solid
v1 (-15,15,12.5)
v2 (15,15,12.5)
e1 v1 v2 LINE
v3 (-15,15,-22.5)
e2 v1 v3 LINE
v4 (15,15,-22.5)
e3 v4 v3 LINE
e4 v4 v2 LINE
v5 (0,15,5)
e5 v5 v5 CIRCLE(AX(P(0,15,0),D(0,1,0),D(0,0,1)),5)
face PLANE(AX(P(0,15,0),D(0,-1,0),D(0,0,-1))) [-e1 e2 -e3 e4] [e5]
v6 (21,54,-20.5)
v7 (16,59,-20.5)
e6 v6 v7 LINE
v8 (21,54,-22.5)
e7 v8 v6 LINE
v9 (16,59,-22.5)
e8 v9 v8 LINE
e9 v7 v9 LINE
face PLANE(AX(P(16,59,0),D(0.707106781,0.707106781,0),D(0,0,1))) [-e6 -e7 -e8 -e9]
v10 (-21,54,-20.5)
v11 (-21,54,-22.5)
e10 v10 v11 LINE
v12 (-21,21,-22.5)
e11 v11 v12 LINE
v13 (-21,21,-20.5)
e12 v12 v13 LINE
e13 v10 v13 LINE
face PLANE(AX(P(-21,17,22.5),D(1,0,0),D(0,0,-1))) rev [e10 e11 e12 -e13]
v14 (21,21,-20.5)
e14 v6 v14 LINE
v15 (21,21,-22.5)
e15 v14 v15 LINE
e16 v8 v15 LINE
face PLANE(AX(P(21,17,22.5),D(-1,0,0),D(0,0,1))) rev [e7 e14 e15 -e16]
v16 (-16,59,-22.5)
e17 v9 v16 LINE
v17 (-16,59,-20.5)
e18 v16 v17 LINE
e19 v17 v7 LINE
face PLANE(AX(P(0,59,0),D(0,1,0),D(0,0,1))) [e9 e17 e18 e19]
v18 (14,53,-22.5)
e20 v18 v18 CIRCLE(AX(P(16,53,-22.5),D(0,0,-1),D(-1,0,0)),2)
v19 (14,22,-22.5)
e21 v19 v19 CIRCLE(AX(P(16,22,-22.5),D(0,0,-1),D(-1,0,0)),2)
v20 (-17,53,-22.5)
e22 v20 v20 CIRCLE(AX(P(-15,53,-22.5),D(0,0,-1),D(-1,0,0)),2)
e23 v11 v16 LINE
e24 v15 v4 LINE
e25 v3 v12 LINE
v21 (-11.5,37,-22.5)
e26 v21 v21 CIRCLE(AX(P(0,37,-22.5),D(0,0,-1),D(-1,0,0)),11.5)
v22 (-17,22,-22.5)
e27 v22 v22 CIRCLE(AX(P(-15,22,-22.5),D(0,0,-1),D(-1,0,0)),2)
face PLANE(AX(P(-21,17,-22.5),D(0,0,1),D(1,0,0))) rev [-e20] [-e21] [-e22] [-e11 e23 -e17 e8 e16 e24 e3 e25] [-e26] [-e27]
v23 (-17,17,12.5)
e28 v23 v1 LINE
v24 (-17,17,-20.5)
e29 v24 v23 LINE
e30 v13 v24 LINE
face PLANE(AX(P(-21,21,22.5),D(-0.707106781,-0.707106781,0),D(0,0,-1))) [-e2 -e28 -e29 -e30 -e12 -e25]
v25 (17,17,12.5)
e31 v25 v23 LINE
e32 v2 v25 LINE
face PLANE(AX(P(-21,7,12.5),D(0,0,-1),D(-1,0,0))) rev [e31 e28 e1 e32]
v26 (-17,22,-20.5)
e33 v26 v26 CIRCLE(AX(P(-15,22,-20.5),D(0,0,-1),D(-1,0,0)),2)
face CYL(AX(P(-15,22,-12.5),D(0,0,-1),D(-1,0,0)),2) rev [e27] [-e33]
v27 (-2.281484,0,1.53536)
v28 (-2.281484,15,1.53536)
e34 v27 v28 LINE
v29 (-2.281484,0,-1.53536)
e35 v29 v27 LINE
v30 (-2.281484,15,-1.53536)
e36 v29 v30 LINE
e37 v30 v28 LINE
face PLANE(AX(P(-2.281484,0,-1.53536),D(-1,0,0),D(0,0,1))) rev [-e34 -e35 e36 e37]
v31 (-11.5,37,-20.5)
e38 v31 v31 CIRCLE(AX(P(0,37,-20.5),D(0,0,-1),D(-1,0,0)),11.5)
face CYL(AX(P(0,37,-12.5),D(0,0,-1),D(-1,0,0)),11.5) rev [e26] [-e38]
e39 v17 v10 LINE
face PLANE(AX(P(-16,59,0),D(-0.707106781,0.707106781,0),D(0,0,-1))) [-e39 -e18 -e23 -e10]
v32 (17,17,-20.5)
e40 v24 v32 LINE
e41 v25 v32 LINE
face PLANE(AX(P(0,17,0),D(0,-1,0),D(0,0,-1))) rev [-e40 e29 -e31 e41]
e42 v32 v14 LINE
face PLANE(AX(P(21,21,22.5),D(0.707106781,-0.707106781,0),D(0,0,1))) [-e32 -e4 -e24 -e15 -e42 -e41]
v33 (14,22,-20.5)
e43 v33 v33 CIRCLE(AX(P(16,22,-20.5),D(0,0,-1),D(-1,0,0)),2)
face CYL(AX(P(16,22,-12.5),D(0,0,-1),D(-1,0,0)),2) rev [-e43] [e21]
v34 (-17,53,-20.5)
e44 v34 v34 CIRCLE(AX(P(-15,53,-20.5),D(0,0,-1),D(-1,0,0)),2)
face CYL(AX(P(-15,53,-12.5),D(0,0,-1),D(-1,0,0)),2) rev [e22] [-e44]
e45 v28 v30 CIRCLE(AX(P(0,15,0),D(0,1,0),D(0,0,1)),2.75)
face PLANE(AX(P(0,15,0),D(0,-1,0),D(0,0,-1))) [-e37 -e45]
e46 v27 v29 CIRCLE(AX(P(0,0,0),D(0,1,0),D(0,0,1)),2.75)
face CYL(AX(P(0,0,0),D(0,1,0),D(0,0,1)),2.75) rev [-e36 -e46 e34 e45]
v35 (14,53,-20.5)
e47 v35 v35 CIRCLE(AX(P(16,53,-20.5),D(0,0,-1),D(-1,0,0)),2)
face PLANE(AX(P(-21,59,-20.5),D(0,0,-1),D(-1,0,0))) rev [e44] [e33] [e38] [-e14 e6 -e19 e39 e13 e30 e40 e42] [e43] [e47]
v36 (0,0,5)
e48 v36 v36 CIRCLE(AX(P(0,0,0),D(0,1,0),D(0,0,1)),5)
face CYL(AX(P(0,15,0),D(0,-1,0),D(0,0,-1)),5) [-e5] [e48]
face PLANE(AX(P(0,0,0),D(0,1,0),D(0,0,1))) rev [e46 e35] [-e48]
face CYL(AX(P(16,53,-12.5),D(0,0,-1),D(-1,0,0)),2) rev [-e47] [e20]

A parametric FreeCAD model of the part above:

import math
import FreeCAD as App
import Part
import Sketcher

V = App.Vector
Q = App.Units.Quantity


def edges_at(feature, points):
    """Names of the edges that pass closest to the given points."""
    edges = feature.Shape.Edges
    near = lambda p: min(range(len(edges)), key=lambda i: edges[i].distToShape(Part.Vertex(*p))[0])
    return sorted({f"Edge{near(p) + 1}" for p in points})


def add_polygon(sketch, points):
    """Adds a closed chain of lines whose ends are joined by coincident constraints."""
    first, n = sketch.GeometryCount, len(points)
    for a, b in zip(points, points[1:] + points[:1]):
        sketch.addGeometry(Part.LineSegment(App.Vector(*a, 0), App.Vector(*b, 0)), False)
    for i in range(n):
        sketch.addConstraint(Sketcher.Constraint("Coincident", first + i, 2, first + (i + 1) % n, 1))

doc = App.newDocument("Part")
body = doc.addObject("PartDesign::Body", "Body")

# Sketch on XZ plane
sketch1 = body.newObject("Sketcher::SketchObject", "Sketch")
sketch1.AttachmentSupport = (doc.getObject("XZ_Plane"), [""])
sketch1.MapMode = "FlatFace"
sketch1.addGeometry(Part.Circle(V(0, 0, 0), V(0, 0, 1), 5), False)
sketch1.addConstraint([
    Sketcher.Constraint("Coincident", 0, 3, -1, 1),
    Sketcher.Constraint("Diameter", 0, Q("10 mm")),
])
pad1 = body.newObject("PartDesign::Pad", "Pad")
pad1.Profile = sketch1
pad1.Length = 15
pad1.Reversed = True

# Sketch on XZ plane
sketch2 = body.newObject("Sketcher::SketchObject", "Sketch001")
sketch2.AttachmentSupport = (doc.getObject("XZ_Plane"), [""])
sketch2.MapMode = "FlatFace"
sketch2.AttachmentOffset = App.Placement(V(0, 0, -15), App.Rotation())
sketch2.addGeometry([
    Part.LineSegment(V(-2.3, -1.5, 0), V(-2.3, 1.5, 0)),
    Part.ArcOfCircle(Part.Circle(V(0, 0, 0), V(0, 0, 1), 2.8), math.radians(-146), math.radians(146)),
], False)
sketch2.addConstraint([
    Sketcher.Constraint("Coincident", 0, 1, 1, 1),
    Sketcher.Constraint("Coincident", 1, 2, 0, 2),
    Sketcher.Constraint("Vertical", 0),
    Sketcher.Constraint("Coincident", 1, 3, -1, 1),
    Sketcher.Constraint("Radius", 1, Q("2.75 mm")),
    Sketcher.Constraint("DistanceY", 0, 1, 0, 2, Q("3.070719 mm")),
])
pocket1 = body.newObject("PartDesign::Pocket", "Pocket")
pocket1.Profile = sketch2
pocket1.Type = "ThroughAll"
pocket1.Reversed = True

# Sketch on XZ plane
sketch3 = body.newObject("Sketcher::SketchObject", "Sketch002")
sketch3.AttachmentSupport = (doc.getObject("XZ_Plane"), [""])
sketch3.MapMode = "FlatFace"
sketch3.AttachmentOffset = App.Placement(V(0, 0, -15), App.Rotation())
add_polygon(sketch3, [(-21, -22), (-21, 22), (21, 22), (21, -22)])  # lines 0-3
sketch3.addConstraint([
    Sketcher.Constraint("Vertical", 0),
    Sketcher.Constraint("Horizontal", 1),
    Sketcher.Constraint("Vertical", 2),
    Sketcher.Constraint("Horizontal", 3),
    Sketcher.Constraint("Symmetric", 0, 2, 2, 2, -1, 1),
    Sketcher.Constraint("DistanceX", 1, 1, 1, 2, Q("42 mm")),
    Sketcher.Constraint("DistanceY", 0, 1, 0, 2, Q("45 mm")),
])
pad2 = body.newObject("PartDesign::Pad", "Pad001")
pad2.Profile = sketch3
pad2.Length = 2
pad2.Reversed = True

# Sketch on XZ plane
sketch4 = body.newObject("Sketcher::SketchObject", "Sketch003")
sketch4.AttachmentSupport = (doc.getObject("XZ_Plane"), [""])
sketch4.MapMode = "FlatFace"
sketch4.AttachmentOffset = App.Placement(V(0, 0, -17), App.Rotation())
add_polygon(sketch4, [(-21, -22.5), (-21, -20.5), (21, -20.5), (21, -22.5)])  # lines 0-3
sketch4.addConstraint([
    Sketcher.Constraint("Vertical", 0),
    Sketcher.Constraint("Horizontal", 1),
    Sketcher.Constraint("Vertical", 2),
    Sketcher.Constraint("Horizontal", 3),
    Sketcher.Constraint("DistanceX", 1, 1, 1, 2, Q("42 mm")),
    Sketcher.Constraint("DistanceY", 0, 1, 0, 2, Q("2 mm")),
    Sketcher.Constraint("DistanceX", 0, 2, -1, 1, Q("21 mm")),
    Sketcher.Constraint("DistanceY", 0, 2, -1, 1, Q("20.5 mm")),
])
pad3 = body.newObject("PartDesign::Pad", "Pad002")
pad3.Profile = sketch4
pad3.Length = 42
pad3.Reversed = True

# Sketch on XY plane
sketch5 = body.newObject("Sketcher::SketchObject", "Sketch004")
sketch5.AttachmentSupport = (doc.getObject("XY_Plane"), [""])
sketch5.MapMode = "FlatFace"
sketch5.AttachmentOffset = App.Placement(V(0, 0, -22.5), App.Rotation())
sketch5.addGeometry(Part.Circle(V(0, 37, 0), V(0, 0, 1), 12), False)
sketch5.addConstraint([
    Sketcher.Constraint("PointOnObject", 0, 3, -2),
    Sketcher.Constraint("Diameter", 0, Q("23 mm")),
    Sketcher.Constraint("DistanceY", -1, 1, 0, 3, Q("37 mm")),
])
pocket2 = body.newObject("PartDesign::Pocket", "Pocket001")
pocket2.Profile = sketch5
pocket2.Length = 10
pocket2.Reversed = True

# Sketch on XZ plane
sketch6 = body.newObject("Sketcher::SketchObject", "Sketch005")
sketch6.AttachmentSupport = (doc.getObject("XZ_Plane"), [""])
sketch6.MapMode = "FlatFace"
sketch6.AttachmentOffset = App.Placement(V(0, 0, -17), App.Rotation())
add_polygon(sketch6, [(-21, 12), (-21, 22), (21, 22), (21, 12)])  # lines 0-3
sketch6.addConstraint([
    Sketcher.Constraint("Vertical", 0),
    Sketcher.Constraint("Horizontal", 1),
    Sketcher.Constraint("Vertical", 2),
    Sketcher.Constraint("Horizontal", 3),
    Sketcher.Constraint("DistanceX", 1, 1, 1, 2, Q("42 mm")),
    Sketcher.Constraint("DistanceY", 0, 1, 0, 2, Q("10 mm")),
    Sketcher.Constraint("DistanceX", 0, 2, -1, 1, Q("21 mm")),
    Sketcher.Constraint("DistanceY", -1, 1, 0, 2, Q("22.5 mm")),
])
pocket3 = body.newObject("PartDesign::Pocket", "Pocket002")
pocket3.Profile = sketch6
pocket3.Length = 10
pocket3.Reversed = True

# Sketch on XY plane
sketch7 = body.newObject("Sketcher::SketchObject", "Sketch006")
sketch7.AttachmentSupport = (doc.getObject("XY_Plane"), [""])
sketch7.MapMode = "FlatFace"
sketch7.AttachmentOffset = App.Placement(V(0, 0, -22.5), App.Rotation())
sketch7.addGeometry([
    Part.Circle(V(-15, 53, 0), V(0, 0, 1), 2),
    Part.Circle(V(16, 53, 0), V(0, 0, 1), 2),
    Part.Circle(V(-15, 22, 0), V(0, 0, 1), 2),
    Part.Circle(V(16, 22, 0), V(0, 0, 1), 2),
], False)
sketch7.addConstraint([
    Sketcher.Constraint("Equal", 0, 1),
    Sketcher.Constraint("Equal", 1, 2),
    Sketcher.Constraint("Equal", 2, 3),
    Sketcher.Constraint("Horizontal", 0, 3, 1, 3),
    Sketcher.Constraint("Horizontal", 2, 3, 3, 3),
    Sketcher.Constraint("Vertical", 0, 3, 2, 3),
    Sketcher.Constraint("Vertical", 1, 3, 3, 3),
    Sketcher.Constraint("Diameter", 0, Q("4 mm")),
    Sketcher.Constraint("DistanceX", 0, 3, -1, 1, Q("15 mm")),
    Sketcher.Constraint("DistanceY", -1, 1, 0, 3, Q("53 mm")),
    Sketcher.Constraint("DistanceX", -1, 1, 1, 3, Q("16 mm")),
    Sketcher.Constraint("DistanceY", -1, 1, 2, 3, Q("22 mm")),
])
pocket4 = body.newObject("PartDesign::Pocket", "Pocket003")
pocket4.Profile = sketch7
pocket4.Length = 10
pocket4.Reversed = True
doc.recompute()

chamfer = body.newObject("PartDesign::Chamfer", "Chamfer")
chamfer.Base = (pocket4, edges_at(pocket4, [(-21, 59, -21.5), (21, 59, -21.5)]))
chamfer.Size = 5
doc.recompute()

chamfer2 = body.newObject("PartDesign::Chamfer", "Chamfer001")
chamfer2.Base = (chamfer, edges_at(chamfer, [(21, 15, -5), (-21, 15, -5)]))
chamfer2.Size = 6

doc.recompute()
